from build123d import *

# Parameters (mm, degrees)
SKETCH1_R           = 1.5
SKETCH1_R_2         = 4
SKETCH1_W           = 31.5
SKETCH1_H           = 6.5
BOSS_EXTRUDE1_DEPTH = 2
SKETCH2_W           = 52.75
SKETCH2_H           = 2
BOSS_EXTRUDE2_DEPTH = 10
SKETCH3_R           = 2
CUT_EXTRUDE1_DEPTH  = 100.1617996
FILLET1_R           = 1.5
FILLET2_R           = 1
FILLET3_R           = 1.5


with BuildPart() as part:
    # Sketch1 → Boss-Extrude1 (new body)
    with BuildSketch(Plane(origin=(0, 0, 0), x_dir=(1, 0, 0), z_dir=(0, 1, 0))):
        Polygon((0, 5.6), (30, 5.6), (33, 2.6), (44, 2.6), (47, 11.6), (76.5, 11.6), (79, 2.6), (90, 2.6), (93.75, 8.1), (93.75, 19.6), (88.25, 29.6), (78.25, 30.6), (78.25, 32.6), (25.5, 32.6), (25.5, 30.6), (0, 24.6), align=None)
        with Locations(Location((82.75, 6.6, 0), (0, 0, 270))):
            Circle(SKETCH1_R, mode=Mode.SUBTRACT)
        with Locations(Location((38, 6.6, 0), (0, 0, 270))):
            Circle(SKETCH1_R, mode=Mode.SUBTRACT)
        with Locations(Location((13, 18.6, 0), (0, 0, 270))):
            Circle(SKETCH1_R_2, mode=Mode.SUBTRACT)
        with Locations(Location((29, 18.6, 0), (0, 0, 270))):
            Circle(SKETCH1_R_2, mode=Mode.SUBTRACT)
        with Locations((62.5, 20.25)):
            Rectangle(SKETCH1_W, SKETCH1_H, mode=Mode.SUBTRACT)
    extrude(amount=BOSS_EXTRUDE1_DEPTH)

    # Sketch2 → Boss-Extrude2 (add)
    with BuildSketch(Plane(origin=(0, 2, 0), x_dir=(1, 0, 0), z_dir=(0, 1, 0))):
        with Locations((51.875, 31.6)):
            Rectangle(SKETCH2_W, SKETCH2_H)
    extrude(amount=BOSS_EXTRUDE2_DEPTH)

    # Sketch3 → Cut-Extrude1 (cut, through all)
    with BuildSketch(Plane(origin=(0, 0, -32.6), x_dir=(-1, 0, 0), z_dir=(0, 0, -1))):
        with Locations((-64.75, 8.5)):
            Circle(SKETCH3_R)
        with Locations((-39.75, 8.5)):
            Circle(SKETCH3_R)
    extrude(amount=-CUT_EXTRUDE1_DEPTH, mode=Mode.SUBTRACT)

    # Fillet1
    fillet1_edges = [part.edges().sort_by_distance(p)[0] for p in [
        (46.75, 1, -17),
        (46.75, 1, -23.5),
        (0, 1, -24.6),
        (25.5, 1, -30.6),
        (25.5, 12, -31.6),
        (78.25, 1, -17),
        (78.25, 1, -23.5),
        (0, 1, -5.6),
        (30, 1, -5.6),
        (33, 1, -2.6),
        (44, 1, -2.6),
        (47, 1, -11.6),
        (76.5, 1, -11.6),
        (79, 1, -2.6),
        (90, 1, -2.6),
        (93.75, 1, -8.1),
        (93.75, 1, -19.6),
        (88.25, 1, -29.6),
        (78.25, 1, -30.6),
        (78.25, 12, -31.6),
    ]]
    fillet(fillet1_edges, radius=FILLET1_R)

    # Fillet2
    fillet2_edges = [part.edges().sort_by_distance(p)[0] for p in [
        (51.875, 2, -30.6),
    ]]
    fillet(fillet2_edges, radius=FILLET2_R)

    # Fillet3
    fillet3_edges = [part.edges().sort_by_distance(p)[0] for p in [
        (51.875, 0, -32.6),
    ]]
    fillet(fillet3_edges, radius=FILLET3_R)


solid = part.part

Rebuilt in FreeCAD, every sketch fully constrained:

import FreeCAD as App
import Part
import Sketcher
Q = App.Units.Quantity


def edges_at(feature, points):
    """Names of the edges that pass closest to the given points."""
    edges = feature.Shape.Edges
    near = lambda p: min(range(len(edges)), key=lambda i: edges[i].distToShape(Part.Vertex(*p))[0])
    return sorted({f"Edge{near(p) + 1}" for p in points})

doc = App.newDocument("Part")
params = doc.addObject("Spreadsheet::Sheet", "Params")
for row, (alias, value) in enumerate([
    ("sketch1_diameter", "3 mm"),
    ("sketch1_diameter2", "8 mm"),
    ("sketch1_width", "30 mm"),
    ("sketch1_width2", "11 mm"),
    ("sketch1_height", "2 mm"),
    ("pad1_length", "2 mm"),
    ("sketch2_height", "2 mm"),
    ("sketch2_width", "52.75 mm"),
    ("pad2_length", "10 mm"),
    ("sketch3_diameter", "4 mm"),
    ("fillet_radius", "1.5 mm"),
    ("fillet2_radius", "1 mm"),
    ("fillet3_radius", "1.5 mm"),
], start=1):
    params.set(f"A{row}", alias)
    params.set(f"B{row}", "=" + value)
    params.setAlias(f"B{row}", alias)

body = doc.addObject("PartDesign::Body", "Body")

sketch1 = body.newObject("Sketcher::SketchObject", "Sketch")
sketch1.AttachmentSupport = (doc.getObject("XZ_Plane"), [""])
sketch1.MapMode = "FlatFace"
sketch1.addGeometry([
    Part.LineSegment(App.Vector(0, -5.6, 0), App.Vector(30, -5.6, 0)),
    Part.LineSegment(App.Vector(30, -5.6, 0), App.Vector(33, -2.6, 0)),
    Part.LineSegment(App.Vector(33, -2.6, 0), App.Vector(44, -2.6, 0)),
    Part.LineSegment(App.Vector(44, -2.6, 0), App.Vector(47, -11.6, 0)),
    Part.LineSegment(App.Vector(47, -11.6, 0), App.Vector(76.5, -11.6, 0)),
    Part.LineSegment(App.Vector(76.5, -11.6, 0), App.Vector(79, -2.6, 0)),
    Part.LineSegment(App.Vector(79, -2.6, 0), App.Vector(90, -2.6, 0)),
    Part.LineSegment(App.Vector(90, -2.6, 0), App.Vector(93.8, -8.1, 0)),
    Part.LineSegment(App.Vector(93.8, -8.1, 0), App.Vector(93.8, -19.6, 0)),
    Part.LineSegment(App.Vector(93.8, -19.6, 0), App.Vector(88.2, -29.6, 0)),
    Part.LineSegment(App.Vector(88.2, -29.6, 0), App.Vector(78.2, -30.6, 0)),
    Part.LineSegment(App.Vector(78.2, -30.6, 0), App.Vector(78.2, -32.6, 0)),
    Part.LineSegment(App.Vector(78.2, -32.6, 0), App.Vector(25.5, -32.6, 0)),
    Part.LineSegment(App.Vector(25.5, -32.6, 0), App.Vector(25.5, -30.6, 0)),
    Part.LineSegment(App.Vector(25.5, -30.6, 0), App.Vector(0, -24.6, 0)),
    Part.LineSegment(App.Vector(0, -24.6, 0), App.Vector(0, -5.6, 0)),
    Part.Circle(App.Vector(38, -6.6, 0), App.Vector(0, 0, 1), 1.5),
    Part.Circle(App.Vector(82.8, -6.6, 0), App.Vector(0, 0, 1), 1.5),
    Part.Circle(App.Vector(13, -18.6, 0), App.Vector(0, 0, 1), 4),
    Part.Circle(App.Vector(29, -18.6, 0), App.Vector(0, 0, 1), 4),
    Part.LineSegment(App.Vector(78.2, -17, 0), App.Vector(46.8, -17, 0)),
    Part.LineSegment(App.Vector(46.8, -17, 0), App.Vector(46.8, -23.5, 0)),
    Part.LineSegment(App.Vector(46.8, -23.5, 0), App.Vector(78.2, -23.5, 0)),
    Part.LineSegment(App.Vector(78.2, -23.5, 0), App.Vector(78.2, -17, 0)),
], False)
sketch1.addConstraint([
    Sketcher.Constraint("Coincident", 0, 2, 1, 1),
    Sketcher.Constraint("Coincident", 1, 2, 2, 1),
    Sketcher.Constraint("Coincident", 2, 2, 3, 1),
    Sketcher.Constraint("Coincident", 3, 2, 4, 1),
    Sketcher.Constraint("Coincident", 4, 2, 5, 1),
    Sketcher.Constraint("Coincident", 5, 2, 6, 1),
    Sketcher.Constraint("Coincident", 6, 2, 7, 1),
    Sketcher.Constraint("Coincident", 7, 2, 8, 1),
    Sketcher.Constraint("Coincident", 8, 2, 9, 1),
    Sketcher.Constraint("Coincident", 9, 2, 10, 1),
    Sketcher.Constraint("Coincident", 10, 2, 11, 1),
    Sketcher.Constraint("Coincident", 11, 2, 12, 1),
    Sketcher.Constraint("Coincident", 12, 2, 13, 1),
    Sketcher.Constraint("Coincident", 13, 2, 14, 1),
    Sketcher.Constraint("Coincident", 14, 2, 15, 1),
    Sketcher.Constraint("Coincident", 15, 2, 0, 1),
    Sketcher.Constraint("Coincident", 20, 2, 21, 1),
    Sketcher.Constraint("Coincident", 21, 2, 22, 1),
    Sketcher.Constraint("Coincident", 22, 2, 23, 1),
    Sketcher.Constraint("Coincident", 23, 2, 20, 1),
    Sketcher.Constraint("Horizontal", 0),
    Sketcher.Constraint("Horizontal", 2),
    Sketcher.Constraint("Horizontal", 4),
    Sketcher.Constraint("Horizontal", 6),
    Sketcher.Constraint("Vertical", 8),
    Sketcher.Constraint("Vertical", 11),
    Sketcher.Constraint("Horizontal", 12),
    Sketcher.Constraint("Vertical", 13),
    Sketcher.Constraint("Vertical", 15),
    Sketcher.Constraint("Horizontal", 20),
    Sketcher.Constraint("Vertical", 21),
    Sketcher.Constraint("Horizontal", 22),
    Sketcher.Constraint("Vertical", 23),
    Sketcher.Constraint("Equal", 16, 17),
    Sketcher.Constraint("Equal", 18, 19),
    Sketcher.Constraint("PointOnObject", 14, 2, -2),
    Sketcher.Constraint("Horizontal", 16, 3, 17, 3),
    Sketcher.Constraint("Horizontal", 18, 3, 19, 3),
    Sketcher.Constraint("Horizontal", 2, 2, 5, 2),
    Sketcher.Constraint("Horizontal", 10, 2, 13, 2),
    Sketcher.Constraint("Vertical", 11, 2, 22, 2),
    Sketcher.Constraint("Equal", 2, 6),
    Sketcher.Constraint("Diameter", 16, 3.0),
    Sketcher.Constraint("Diameter", 18, 8.0),
    Sketcher.Constraint("DistanceX", 0, 1, 0, 2, 30.0),
    Sketcher.Constraint("DistanceX", 2, 1, 2, 2, 11.0),
    Sketcher.Constraint("DistanceY", 11, 2, 11, 1, 2.0),
    Sketcher.Constraint("DistanceY", 15, 1, 15, 2, 19.0),
    Sketcher.Constraint("Angle", 1, Q("45 deg")),
    Sketcher.Constraint("DistanceX", 4, 1, 4, 2, 29.5),
    Sketcher.Constraint("DistanceX", 20, 2, 20, 1, 31.5),
    Sketcher.Constraint("DistanceY", 8, 2, 8, 1, 11.5),
    Sketcher.Constraint("DistanceY", 21, 2, 21, 1, 6.5),
    Sketcher.Constraint("DistanceX", -1, 1, 16, 3, 38.0),
    Sketcher.Constraint("DistanceX", -1, 1, 18, 3, 13.0),
    Sketcher.Constraint("DistanceX", -1, 1, 19, 3, 29.0),
    Sketcher.Constraint("DistanceX", -1, 1, 1, 2, 33.0),
    Sketcher.Constraint("DistanceX", -1, 1, 3, 2, 47.0),
    Sketcher.Constraint("DistanceX", -1, 1, 5, 2, 79.0),
    Sketcher.Constraint("DistanceY", 20, 2, -1, 1, 17.0),
    Sketcher.Constraint("DistanceY", 18, 3, 16, 3, 12.0),
    Sketcher.Constraint("DistanceY", 16, 3, 0, 2, 1.0),
    Sketcher.Constraint("DistanceY", 3, 2, 2, 2, 9.0),
    Sketcher.Constraint("DistanceX", 17, 3, 7, 2, 11.0),
    Sketcher.Constraint("DistanceY", 8, 2, 17, 3, 13.0),
    Sketcher.Constraint("DistanceY", 9, 2, 8, 2, 10.0),
    Sketcher.Constraint("DistanceX", 10, 2, 9, 2, 10.0),
    Sketcher.Constraint("DistanceY", 10, 2, 9, 2, 1.0),
    Sketcher.Constraint("DistanceX", 12, 2, 12, 1, 52.75),
    Sketcher.Constraint("DistanceY", 16, 3, -1, 1, 6.6),
    Sketcher.Constraint("DistanceX", -1, 1, 12, 2, 25.5),
    Sketcher.Constraint("DistanceX", 9, 2, 8, 2, 5.5),
])
sketch1.setExpression("Constraints[42]", "Params.sketch1_diameter")
sketch1.setExpression("Constraints[43]", "Params.sketch1_diameter2")
sketch1.setExpression("Constraints[44]", "Params.sketch1_width")
sketch1.setExpression("Constraints[45]", "Params.sketch1_width2")
sketch1.setExpression("Constraints[46]", "Params.sketch1_height")
pad1 = body.newObject("PartDesign::Pad", "Pad")
pad1.Profile = sketch1
pad1.setExpression("Length", "Params.pad1_length")
pad1.Reversed = True

sketch2 = body.newObject("Sketcher::SketchObject", "Sketch001")
sketch2.AttachmentSupport = (doc.getObject("XZ_Plane"), [""])
sketch2.MapMode = "FlatFace"
sketch2.AttachmentOffset = App.Placement(App.Vector(0, 0, -2), App.Rotation())
sketch2.addGeometry([
    Part.LineSegment(App.Vector(25.5, -32.6, 0), App.Vector(25.5, -30.6, 0)),
    Part.LineSegment(App.Vector(25.5, -30.6, 0), App.Vector(78.2, -30.6, 0)),
    Part.LineSegment(App.Vector(78.2, -30.6, 0), App.Vector(78.2, -32.6, 0)),
    Part.LineSegment(App.Vector(78.2, -32.6, 0), App.Vector(25.5, -32.6, 0)),
], False)
sketch2.addConstraint([
    Sketcher.Constraint("Coincident", 0, 2, 1, 1),
    Sketcher.Constraint("Coincident", 1, 2, 2, 1),
    Sketcher.Constraint("Coincident", 2, 2, 3, 1),
    Sketcher.Constraint("Coincident", 3, 2, 0, 1),
    Sketcher.Constraint("Vertical", 0),
    Sketcher.Constraint("Horizontal", 1),
    Sketcher.Constraint("Vertical", 2),
    Sketcher.Constraint("Horizontal", 3),
    Sketcher.Constraint("DistanceY", 0, 1, 0, 2, 2.0),
    Sketcher.Constraint("DistanceX", 1, 1, 1, 2, 52.75),
    Sketcher.Constraint("DistanceX", -1, 1, 0, 2, 25.5),
    Sketcher.Constraint("DistanceY", 0, 2, -1, 1, 30.6),
])
sketch2.setExpression("Constraints[8]", "Params.sketch2_height")
sketch2.setExpression("Constraints[9]", "Params.sketch2_width")
pad2 = body.newObject("PartDesign::Pad", "Pad001")
pad2.Profile = sketch2
pad2.setExpression("Length", "Params.pad2_length")
pad2.Reversed = True

sketch3 = body.newObject("Sketcher::SketchObject", "Sketch002")
sketch3.AttachmentSupport = (doc.getObject("XY_Plane"), [""])
sketch3.MapMode = "FlatFace"
sketch3.AttachmentOffset = App.Placement(App.Vector(0, 0, -32.6), App.Rotation())
sketch3.addGeometry([
    Part.Circle(App.Vector(64.8, 8.5, 0), App.Vector(0, 0, 1), 2),
    Part.Circle(App.Vector(39.8, 8.5, 0), App.Vector(0, 0, 1), 2),
], False)
sketch3.addConstraint([
    Sketcher.Constraint("Equal", 0, 1),
    Sketcher.Constraint("Horizontal", 0, 3, 1, 3),
    Sketcher.Constraint("Diameter", 0, 4.0),
    Sketcher.Constraint("DistanceX", 1, 3, 0, 3, 25.0),
    Sketcher.Constraint("DistanceY", -1, 1, 0, 3, 8.5),
    Sketcher.Constraint("DistanceX", -1, 1, 0, 3, 64.75),
])
sketch3.setExpression("Constraints[2]", "Params.sketch3_diameter")
pocket1 = body.newObject("PartDesign::Pocket", "Pocket")
pocket1.Profile = sketch3
pocket1.Type = "ThroughAll"
pocket1.Reversed = True
doc.recompute()

fillet = body.newObject("PartDesign::Fillet", "Fillet")
fillet.Base = (pocket1, edges_at(pocket1, [
    (46.75, 1, -17),
    (46.75, 1, -23.5),
    (0, 1, -24.6),
    (25.5, 1, -30.6),
    (25.5, 12, -31.6),
    (78.25, 1, -17),
    (78.25, 1, -23.5),
    (0, 1, -5.6),
    (30, 1, -5.6),
    (33, 1, -2.6),
    (44, 1, -2.6),
    (47, 1, -11.6),
    (76.5, 1, -11.6),
    (79, 1, -2.6),
    (90, 1, -2.6),
    (93.75, 1, -8.1),
    (93.75, 1, -19.6),
    (88.25, 1, -29.6),
    (78.25, 1, -30.6),
    (78.25, 12, -31.6),
]))
fillet.setExpression("Radius", "Params.fillet_radius")
doc.recompute()

fillet2 = body.newObject("PartDesign::Fillet", "Fillet001")
fillet2.Base = (fillet, edges_at(fillet, [(51.875, 2, -30.6)]))
fillet2.setExpression("Radius", "Params.fillet2_radius")
doc.recompute()

fillet3 = body.newObject("PartDesign::Fillet", "Fillet002")
fillet3.Base = (fillet2, edges_at(fillet2, [(51.875, 0, -32.6)]))
fillet3.setExpression("Radius", "Params.fillet3_radius")

doc.recompute()
